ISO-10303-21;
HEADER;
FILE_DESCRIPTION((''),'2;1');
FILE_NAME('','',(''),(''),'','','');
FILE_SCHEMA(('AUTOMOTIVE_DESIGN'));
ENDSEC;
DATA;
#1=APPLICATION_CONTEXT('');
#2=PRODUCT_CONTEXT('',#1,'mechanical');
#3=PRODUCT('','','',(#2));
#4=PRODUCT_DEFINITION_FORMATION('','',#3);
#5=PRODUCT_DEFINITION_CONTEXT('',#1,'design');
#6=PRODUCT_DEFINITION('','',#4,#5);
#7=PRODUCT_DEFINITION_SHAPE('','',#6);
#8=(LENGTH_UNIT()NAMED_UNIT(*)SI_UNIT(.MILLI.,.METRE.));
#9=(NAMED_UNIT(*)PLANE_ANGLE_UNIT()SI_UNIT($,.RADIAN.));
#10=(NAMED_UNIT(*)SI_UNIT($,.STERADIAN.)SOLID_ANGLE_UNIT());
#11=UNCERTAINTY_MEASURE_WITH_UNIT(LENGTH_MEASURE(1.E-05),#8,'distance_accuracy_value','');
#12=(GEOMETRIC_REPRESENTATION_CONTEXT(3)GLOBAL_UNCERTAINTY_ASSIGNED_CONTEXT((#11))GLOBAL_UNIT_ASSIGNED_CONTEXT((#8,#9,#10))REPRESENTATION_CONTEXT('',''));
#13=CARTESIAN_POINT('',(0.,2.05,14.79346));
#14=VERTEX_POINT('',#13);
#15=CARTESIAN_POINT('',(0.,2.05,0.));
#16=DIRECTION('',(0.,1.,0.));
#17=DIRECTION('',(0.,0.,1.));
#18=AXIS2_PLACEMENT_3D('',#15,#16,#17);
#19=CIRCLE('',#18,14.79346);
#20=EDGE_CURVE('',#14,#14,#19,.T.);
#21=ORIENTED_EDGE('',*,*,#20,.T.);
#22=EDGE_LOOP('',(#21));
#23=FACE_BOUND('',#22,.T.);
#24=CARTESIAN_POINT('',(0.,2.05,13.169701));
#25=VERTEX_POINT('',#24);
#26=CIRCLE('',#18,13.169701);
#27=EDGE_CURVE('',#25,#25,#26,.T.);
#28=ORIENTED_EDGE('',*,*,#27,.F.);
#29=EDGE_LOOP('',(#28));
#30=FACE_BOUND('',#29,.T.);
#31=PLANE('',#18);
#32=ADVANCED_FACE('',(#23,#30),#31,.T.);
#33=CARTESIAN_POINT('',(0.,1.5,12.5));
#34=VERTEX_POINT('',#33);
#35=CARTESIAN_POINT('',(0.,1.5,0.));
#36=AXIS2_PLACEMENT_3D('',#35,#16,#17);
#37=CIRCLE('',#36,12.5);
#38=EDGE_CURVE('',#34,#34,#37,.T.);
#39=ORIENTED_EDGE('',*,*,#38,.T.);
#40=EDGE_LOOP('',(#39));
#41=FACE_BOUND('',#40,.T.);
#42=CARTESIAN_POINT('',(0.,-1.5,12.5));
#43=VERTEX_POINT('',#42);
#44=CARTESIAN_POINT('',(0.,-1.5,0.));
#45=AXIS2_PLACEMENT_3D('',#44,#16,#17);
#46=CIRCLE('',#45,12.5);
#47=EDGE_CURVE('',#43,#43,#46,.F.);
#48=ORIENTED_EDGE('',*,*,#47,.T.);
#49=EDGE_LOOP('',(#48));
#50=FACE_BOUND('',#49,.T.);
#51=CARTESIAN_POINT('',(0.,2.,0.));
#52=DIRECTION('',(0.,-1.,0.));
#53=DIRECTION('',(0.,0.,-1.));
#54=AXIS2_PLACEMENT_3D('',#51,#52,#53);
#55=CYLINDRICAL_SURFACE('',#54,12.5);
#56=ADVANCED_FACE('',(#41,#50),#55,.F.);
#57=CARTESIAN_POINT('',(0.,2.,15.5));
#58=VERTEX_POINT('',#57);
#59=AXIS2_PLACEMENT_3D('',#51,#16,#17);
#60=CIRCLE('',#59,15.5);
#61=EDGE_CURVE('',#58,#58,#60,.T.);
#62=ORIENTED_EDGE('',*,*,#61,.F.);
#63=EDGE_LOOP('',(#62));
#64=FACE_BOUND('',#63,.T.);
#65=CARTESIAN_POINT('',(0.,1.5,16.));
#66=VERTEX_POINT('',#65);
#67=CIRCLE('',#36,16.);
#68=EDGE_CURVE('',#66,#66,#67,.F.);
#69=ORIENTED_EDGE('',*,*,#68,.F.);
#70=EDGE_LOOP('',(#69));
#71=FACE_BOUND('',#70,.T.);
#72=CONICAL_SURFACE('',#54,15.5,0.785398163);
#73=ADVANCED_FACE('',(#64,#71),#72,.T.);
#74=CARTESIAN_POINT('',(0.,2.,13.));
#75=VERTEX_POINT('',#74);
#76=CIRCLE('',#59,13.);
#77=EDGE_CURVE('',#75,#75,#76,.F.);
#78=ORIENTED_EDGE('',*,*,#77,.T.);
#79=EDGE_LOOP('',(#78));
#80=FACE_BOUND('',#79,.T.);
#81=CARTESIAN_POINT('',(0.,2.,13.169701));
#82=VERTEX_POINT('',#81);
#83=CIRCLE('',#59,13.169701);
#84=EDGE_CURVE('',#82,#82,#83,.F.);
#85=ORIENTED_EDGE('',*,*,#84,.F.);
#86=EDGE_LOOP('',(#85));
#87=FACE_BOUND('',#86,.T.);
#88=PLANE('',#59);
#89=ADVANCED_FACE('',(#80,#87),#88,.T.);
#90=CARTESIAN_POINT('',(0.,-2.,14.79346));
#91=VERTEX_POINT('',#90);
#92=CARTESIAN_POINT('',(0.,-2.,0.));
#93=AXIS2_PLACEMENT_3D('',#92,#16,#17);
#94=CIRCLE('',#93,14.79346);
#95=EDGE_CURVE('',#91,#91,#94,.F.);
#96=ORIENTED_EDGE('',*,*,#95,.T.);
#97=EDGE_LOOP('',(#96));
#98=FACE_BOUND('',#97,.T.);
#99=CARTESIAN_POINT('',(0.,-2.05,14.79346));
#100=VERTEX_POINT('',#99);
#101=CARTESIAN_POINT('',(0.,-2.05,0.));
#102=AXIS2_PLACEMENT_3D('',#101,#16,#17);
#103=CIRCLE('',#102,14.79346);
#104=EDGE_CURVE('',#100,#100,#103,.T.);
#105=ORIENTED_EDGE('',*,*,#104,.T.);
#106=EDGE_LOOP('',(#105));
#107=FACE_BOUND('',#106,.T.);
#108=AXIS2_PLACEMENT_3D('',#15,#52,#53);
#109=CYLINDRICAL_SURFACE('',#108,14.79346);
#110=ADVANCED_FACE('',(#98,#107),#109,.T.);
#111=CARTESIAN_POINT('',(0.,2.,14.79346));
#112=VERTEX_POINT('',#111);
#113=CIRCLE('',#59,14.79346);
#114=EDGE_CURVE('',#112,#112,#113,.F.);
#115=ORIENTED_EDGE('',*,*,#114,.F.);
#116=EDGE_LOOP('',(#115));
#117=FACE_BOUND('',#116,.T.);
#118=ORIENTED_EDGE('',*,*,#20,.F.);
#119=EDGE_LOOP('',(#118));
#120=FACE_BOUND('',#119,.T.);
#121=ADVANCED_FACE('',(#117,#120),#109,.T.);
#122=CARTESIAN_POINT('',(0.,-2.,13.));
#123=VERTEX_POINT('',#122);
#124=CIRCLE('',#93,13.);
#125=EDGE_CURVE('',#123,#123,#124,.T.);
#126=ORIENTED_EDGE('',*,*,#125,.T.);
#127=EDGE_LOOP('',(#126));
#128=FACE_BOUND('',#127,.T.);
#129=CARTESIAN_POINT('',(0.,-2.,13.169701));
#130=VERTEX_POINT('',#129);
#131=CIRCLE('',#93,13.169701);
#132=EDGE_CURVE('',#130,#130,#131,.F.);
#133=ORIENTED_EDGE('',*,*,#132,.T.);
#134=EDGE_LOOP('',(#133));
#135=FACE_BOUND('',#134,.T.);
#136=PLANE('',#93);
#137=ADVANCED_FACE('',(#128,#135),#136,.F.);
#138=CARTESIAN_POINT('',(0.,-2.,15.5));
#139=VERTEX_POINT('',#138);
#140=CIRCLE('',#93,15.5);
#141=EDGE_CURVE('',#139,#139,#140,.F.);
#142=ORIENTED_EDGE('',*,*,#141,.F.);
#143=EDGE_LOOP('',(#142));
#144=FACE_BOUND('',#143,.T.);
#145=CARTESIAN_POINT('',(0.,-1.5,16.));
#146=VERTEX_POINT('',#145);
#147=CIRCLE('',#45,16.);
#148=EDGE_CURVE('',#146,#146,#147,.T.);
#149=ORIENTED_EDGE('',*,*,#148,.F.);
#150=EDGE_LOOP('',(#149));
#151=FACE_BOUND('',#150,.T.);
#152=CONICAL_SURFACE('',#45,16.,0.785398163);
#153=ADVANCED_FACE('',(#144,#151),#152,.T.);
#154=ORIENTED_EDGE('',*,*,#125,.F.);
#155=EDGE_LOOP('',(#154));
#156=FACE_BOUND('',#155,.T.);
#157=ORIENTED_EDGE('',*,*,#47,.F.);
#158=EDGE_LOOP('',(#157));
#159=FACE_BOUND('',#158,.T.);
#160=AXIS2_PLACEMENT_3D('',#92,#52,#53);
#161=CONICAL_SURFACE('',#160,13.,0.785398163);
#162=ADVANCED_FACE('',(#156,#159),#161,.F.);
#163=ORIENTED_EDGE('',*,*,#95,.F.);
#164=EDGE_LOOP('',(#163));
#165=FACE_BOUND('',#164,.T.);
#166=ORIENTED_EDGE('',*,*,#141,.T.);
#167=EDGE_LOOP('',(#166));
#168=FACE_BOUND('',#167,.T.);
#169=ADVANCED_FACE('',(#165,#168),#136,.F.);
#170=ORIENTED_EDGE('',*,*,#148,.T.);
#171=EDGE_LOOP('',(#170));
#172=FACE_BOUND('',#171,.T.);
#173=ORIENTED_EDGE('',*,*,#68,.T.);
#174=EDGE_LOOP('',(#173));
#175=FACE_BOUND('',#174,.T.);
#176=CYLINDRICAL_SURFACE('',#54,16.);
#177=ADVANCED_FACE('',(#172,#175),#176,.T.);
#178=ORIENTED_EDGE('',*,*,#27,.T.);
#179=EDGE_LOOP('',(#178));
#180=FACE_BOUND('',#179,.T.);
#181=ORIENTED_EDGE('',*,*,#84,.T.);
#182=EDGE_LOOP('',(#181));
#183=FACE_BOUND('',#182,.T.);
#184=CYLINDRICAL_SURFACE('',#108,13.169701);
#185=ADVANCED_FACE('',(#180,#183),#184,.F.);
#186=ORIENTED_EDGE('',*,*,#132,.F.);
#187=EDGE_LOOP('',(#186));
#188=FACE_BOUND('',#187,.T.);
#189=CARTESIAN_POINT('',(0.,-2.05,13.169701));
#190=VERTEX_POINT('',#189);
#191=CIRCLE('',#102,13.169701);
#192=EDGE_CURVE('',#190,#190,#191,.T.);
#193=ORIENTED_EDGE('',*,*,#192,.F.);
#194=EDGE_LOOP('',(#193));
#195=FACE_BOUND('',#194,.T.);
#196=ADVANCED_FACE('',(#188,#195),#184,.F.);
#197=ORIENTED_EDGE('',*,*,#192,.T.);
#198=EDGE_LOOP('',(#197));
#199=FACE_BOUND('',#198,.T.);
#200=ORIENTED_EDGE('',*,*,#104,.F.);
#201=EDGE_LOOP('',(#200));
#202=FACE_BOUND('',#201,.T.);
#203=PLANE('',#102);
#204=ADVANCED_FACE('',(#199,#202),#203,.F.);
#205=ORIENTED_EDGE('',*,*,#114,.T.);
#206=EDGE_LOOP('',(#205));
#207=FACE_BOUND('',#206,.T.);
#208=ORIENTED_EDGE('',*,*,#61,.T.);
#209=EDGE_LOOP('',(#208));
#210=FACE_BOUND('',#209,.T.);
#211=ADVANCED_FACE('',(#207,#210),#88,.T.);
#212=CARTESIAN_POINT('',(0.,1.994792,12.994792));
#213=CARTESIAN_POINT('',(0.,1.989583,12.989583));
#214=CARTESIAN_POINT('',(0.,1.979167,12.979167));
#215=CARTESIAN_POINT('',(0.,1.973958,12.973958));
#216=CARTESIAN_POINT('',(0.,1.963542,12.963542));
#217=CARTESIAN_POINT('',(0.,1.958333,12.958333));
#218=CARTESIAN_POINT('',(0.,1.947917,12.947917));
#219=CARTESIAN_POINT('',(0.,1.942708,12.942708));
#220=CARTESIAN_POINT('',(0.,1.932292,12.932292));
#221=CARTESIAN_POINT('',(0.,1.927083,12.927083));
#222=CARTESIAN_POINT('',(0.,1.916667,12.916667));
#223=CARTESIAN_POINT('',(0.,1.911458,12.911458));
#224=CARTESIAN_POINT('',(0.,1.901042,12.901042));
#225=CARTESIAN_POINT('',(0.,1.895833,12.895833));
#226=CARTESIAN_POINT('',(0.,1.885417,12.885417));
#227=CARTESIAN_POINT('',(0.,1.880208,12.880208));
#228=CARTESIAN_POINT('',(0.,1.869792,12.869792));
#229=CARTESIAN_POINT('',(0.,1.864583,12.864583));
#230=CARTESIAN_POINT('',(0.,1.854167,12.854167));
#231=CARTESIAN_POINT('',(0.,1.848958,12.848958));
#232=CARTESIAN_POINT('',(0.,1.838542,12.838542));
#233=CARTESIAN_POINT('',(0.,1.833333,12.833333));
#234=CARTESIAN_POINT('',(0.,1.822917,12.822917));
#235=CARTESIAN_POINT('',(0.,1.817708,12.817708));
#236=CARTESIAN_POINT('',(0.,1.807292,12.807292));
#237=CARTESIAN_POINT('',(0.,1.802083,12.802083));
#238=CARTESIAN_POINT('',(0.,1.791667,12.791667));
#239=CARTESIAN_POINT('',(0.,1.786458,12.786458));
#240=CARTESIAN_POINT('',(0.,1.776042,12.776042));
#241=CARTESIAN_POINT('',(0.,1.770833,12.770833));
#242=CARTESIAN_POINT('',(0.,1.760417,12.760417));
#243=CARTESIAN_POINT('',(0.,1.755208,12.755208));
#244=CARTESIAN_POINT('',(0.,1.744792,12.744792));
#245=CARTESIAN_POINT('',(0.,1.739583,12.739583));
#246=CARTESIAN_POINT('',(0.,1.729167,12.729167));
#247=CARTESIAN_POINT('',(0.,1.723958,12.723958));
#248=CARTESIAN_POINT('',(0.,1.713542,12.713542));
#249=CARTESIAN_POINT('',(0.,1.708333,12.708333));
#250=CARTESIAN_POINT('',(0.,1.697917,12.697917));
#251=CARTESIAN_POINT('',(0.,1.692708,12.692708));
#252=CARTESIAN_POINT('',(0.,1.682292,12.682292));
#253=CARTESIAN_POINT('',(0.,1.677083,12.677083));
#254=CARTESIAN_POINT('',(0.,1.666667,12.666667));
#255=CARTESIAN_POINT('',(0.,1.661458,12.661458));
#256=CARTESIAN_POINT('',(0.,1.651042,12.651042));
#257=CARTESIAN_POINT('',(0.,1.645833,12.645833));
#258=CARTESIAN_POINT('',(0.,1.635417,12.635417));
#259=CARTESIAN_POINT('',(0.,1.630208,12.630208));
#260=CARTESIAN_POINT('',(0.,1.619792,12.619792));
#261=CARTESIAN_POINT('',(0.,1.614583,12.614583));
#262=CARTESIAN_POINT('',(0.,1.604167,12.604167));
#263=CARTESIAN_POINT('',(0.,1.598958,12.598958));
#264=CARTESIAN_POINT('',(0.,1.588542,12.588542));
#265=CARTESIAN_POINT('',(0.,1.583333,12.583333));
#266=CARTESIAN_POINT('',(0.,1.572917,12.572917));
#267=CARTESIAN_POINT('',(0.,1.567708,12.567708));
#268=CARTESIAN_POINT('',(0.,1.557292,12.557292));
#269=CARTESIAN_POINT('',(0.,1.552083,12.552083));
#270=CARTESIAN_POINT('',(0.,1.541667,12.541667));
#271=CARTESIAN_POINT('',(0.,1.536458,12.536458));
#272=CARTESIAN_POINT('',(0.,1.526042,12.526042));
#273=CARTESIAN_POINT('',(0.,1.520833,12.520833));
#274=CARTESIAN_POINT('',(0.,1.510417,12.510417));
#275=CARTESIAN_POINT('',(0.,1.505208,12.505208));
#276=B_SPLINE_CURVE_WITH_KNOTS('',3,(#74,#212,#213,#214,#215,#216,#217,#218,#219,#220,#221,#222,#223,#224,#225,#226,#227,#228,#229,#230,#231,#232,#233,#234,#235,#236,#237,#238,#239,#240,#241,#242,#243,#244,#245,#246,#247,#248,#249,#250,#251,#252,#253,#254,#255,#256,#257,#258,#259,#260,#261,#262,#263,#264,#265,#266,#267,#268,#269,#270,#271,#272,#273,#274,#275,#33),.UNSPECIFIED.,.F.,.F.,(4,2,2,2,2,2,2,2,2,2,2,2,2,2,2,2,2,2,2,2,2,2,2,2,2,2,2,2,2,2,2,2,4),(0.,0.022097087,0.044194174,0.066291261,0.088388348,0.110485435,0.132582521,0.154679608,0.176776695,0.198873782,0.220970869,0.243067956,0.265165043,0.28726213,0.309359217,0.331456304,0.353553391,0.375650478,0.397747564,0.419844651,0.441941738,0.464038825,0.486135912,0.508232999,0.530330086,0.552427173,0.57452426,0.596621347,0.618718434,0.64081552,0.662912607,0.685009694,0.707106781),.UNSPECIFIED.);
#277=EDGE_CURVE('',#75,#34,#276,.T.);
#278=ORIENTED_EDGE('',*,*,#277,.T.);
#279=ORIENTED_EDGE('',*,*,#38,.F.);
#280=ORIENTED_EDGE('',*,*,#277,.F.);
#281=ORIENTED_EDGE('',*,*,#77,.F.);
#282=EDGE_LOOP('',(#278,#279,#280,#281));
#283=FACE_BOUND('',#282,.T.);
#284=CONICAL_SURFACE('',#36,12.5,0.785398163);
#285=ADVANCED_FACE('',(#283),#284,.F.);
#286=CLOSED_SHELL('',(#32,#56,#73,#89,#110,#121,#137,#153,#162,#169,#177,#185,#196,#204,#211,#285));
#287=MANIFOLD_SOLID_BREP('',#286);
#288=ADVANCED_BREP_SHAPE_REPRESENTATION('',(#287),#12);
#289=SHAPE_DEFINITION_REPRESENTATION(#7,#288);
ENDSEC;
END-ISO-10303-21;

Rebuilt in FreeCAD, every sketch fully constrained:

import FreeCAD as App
import Part
import Sketcher
from FreeCAD import Vector


def edges_at(feature, points):
    """Names of the edges that pass closest to the given points."""
    edges = feature.Shape.Edges
    near = lambda p: min(range(len(edges)), key=lambda i: edges[i].distToShape(Part.Vertex(*p))[0])
    return sorted({f"Edge{near(p) + 1}" for p in points})

doc = App.newDocument("Part")
params = doc.addObject("Spreadsheet::Sheet", "Params")
for row, (alias, value) in enumerate([
    ("sketch1_diameter", "32 mm"),
    ("sketch1_diameter2", "25 mm"),
    ("pad1_length", "4 mm"),
    ("chamfer_size", "0.5 mm"),
    ("pad2_length", "4.1 mm"),
], start=1):
    params.set(f"A{row}", alias)
    params.set(f"B{row}", "=" + value)
    params.setAlias(f"B{row}", alias)

body = doc.addObject("PartDesign::Body", "Body")

# Sketch on XZ plane
sketch1 = body.newObject("Sketcher::SketchObject", "Sketch")
sketch1.AttachmentSupport = (doc.getObject("XZ_Plane"), [""])
sketch1.MapMode = "FlatFace"
sketch1.addGeometry([
    Part.Circle(Vector(0, 0, 0), Vector(0, 0, 1), 16),
    Part.Circle(Vector(0, 0, 0), Vector(0, 0, 1), 12),
], False)
sketch1.addConstraint([
    Sketcher.Constraint("Coincident", 0, 3, -1, 1),
    Sketcher.Constraint("Coincident", 1, 3, -1, 1),
    Sketcher.Constraint("Diameter", 0, 32.0),
    Sketcher.Constraint("Diameter", 1, 25.0),
])
sketch1.setExpression("Constraints[2]", "Params.sketch1_diameter")
sketch1.setExpression("Constraints[3]", "Params.sketch1_diameter2")
pad1 = body.newObject("PartDesign::Pad", "Pad")
pad1.Profile = sketch1
pad1.setExpression("Length", "Params.pad1_length")
pad1.Midplane = True
doc.recompute()

chamfer = body.newObject("PartDesign::Chamfer", "Chamfer")
chamfer.Base = (pad1, edges_at(pad1, [
    (0, -2, -16),
    (0, 2, -16),
    (0, -2, -12.5),
    (0, 2, -12.5),
]))
chamfer.setExpression("Size", "Params.chamfer_size")

# Sketch on XZ plane
sketch2 = body.newObject("Sketcher::SketchObject", "Sketch001")
sketch2.AttachmentSupport = (doc.getObject("XZ_Plane"), [""])
sketch2.MapMode = "FlatFace"
sketch2.addGeometry([
    Part.Circle(Vector(0, 0, 0), Vector(0, 0, 1), 15),
    Part.Circle(Vector(0, 0, 0), Vector(0, 0, 1), 13),
], False)
sketch2.addConstraint([
    Sketcher.Constraint("Coincident", 0, 3, -1, 1),
    Sketcher.Constraint("Coincident", 1, 3, -1, 1),
    Sketcher.Constraint("Diameter", 0, 29.586921),
    Sketcher.Constraint("Diameter", 1, 26.339403),
])
pad2 = body.newObject("PartDesign::Pad", "Pad001")
pad2.Profile = sketch2
pad2.setExpression("Length", "Params.pad2_length")
pad2.Midplane = True

doc.recompute()
